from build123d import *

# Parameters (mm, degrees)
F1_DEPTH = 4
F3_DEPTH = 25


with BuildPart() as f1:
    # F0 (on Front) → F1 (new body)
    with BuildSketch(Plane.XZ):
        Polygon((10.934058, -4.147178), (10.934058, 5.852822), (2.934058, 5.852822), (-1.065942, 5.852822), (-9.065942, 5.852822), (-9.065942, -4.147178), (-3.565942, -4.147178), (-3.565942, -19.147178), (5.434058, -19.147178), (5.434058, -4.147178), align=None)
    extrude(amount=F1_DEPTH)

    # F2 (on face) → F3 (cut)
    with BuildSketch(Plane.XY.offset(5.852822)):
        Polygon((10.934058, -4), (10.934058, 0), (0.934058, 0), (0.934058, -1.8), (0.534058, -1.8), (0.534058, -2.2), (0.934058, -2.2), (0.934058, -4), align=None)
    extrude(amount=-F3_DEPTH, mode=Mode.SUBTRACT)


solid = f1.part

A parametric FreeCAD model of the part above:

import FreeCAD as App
import Part
import Sketcher

V = App.Vector

doc = App.newDocument("Part")
params = doc.addObject("Spreadsheet::Sheet", "Params")
for row, (alias, value) in enumerate([
    ("sketch1_width", "20 mm"),
    ("sketch1_width2", "9 mm"),
    ("sketch1_height", "10 mm"),
    ("sketch1_height2", "15 mm"),
    ("pad1_length", "4 mm"),
    ("sketch2_width", "10 mm"),
    ("sketch2_height", "4 mm"),
    ("sketch2_width2", "0.4 mm"),
    ("pocket1_length", "25 mm"),
], start=1):
    params.set(f"A{row}", alias)
    params.set(f"B{row}", "=" + value)
    params.setAlias(f"B{row}", alias)

body = doc.addObject("PartDesign::Body", "Body")

# Sketch on XZ plane
sketch1 = doc.addObject("Sketcher::SketchObject", "Sketch")
body.addObject(sketch1)
sketch1.AttachmentSupport = (doc.XZ_Plane, [""])
sketch1.MapMode = "FlatFace"
sketch1.addGeometry([
    Part.LineSegment(V(11, -4, 0), V(11, 6, 0)),  # 0
    Part.LineSegment(V(11, 6, 0), V(-9, 6, 0)),  # 1
    Part.LineSegment(V(-9, 6, 0), V(-9, -4, 0)),  # 2
    Part.LineSegment(V(-9, -4, 0), V(-4, -4, 0)),  # 3
    Part.LineSegment(V(-4, -4, 0), V(-4, -19, 0)),  # 4
    Part.LineSegment(V(-4, -19, 0), V(5, -19, 0)),  # 5
    Part.LineSegment(V(5, -19, 0), V(5, -4, 0)),  # 6
    Part.LineSegment(V(5, -4, 0), V(11, -4, 0)),  # 7
], False)
sketch1.addConstraint([
    Sketcher.Constraint("Coincident", 0, 2, 1, 1),
    Sketcher.Constraint("Coincident", 1, 2, 2, 1),
    Sketcher.Constraint("Coincident", 2, 2, 3, 1),
    Sketcher.Constraint("Coincident", 3, 2, 4, 1),
    Sketcher.Constraint("Coincident", 4, 2, 5, 1),
    Sketcher.Constraint("Coincident", 5, 2, 6, 1),
    Sketcher.Constraint("Coincident", 6, 2, 7, 1),
    Sketcher.Constraint("Coincident", 7, 2, 0, 1),
    Sketcher.Constraint("Vertical", 0),
    Sketcher.Constraint("Horizontal", 1),
    Sketcher.Constraint("Vertical", 2),
    Sketcher.Constraint("Horizontal", 3),
    Sketcher.Constraint("Vertical", 4),
    Sketcher.Constraint("Horizontal", 5),
    Sketcher.Constraint("Vertical", 6),
    Sketcher.Constraint("Horizontal", 7),
    Sketcher.Constraint("Horizontal", 3, 2, 6, 2),
    Sketcher.Constraint("Equal", 3, 7),
    Sketcher.Constraint("DistanceX", 1, 2, 1, 1, 20.0),
    Sketcher.Constraint("DistanceX", 5, 1, 5, 2, 9.0),
    Sketcher.Constraint("DistanceY", 0, 1, 0, 2, 10.0),
    Sketcher.Constraint("DistanceY", 4, 2, 4, 1, 15.0),
    Sketcher.Constraint("DistanceY", -1, 1, 0, 2, 5.852822),
    Sketcher.Constraint("DistanceX", -1, 1, 5, 2, 5.434058),
])
sketch1.setExpression("Constraints[18]", "Params.sketch1_width")
sketch1.setExpression("Constraints[19]", "Params.sketch1_width2")
sketch1.setExpression("Constraints[20]", "Params.sketch1_height")
sketch1.setExpression("Constraints[21]", "Params.sketch1_height2")
pad1 = doc.addObject("PartDesign::Pad", "Pad")
body.addObject(pad1)
pad1.Profile = sketch1
pad1.setExpression("Length", "Params.pad1_length")

# Sketch on XY plane
sketch2 = doc.addObject("Sketcher::SketchObject", "Sketch001")
body.addObject(sketch2)
sketch2.AttachmentSupport = (doc.XY_Plane, [""])
sketch2.MapMode = "FlatFace"
sketch2.AttachmentOffset = App.Placement(V(0, 0, 5.852822), App.Rotation())
sketch2.addGeometry([
    Part.LineSegment(V(10.93, -4, 0), V(10.93, 0, 0)),  # 0
    Part.LineSegment(V(10.93, 0, 0), V(0.93, 0, 0)),  # 1
    Part.LineSegment(V(0.93, 0, 0), V(0.93, -1.8, 0)),  # 2
    Part.LineSegment(V(0.93, -1.8, 0), V(0.53, -1.8, 0)),  # 3
    Part.LineSegment(V(0.53, -1.8, 0), V(0.53, -2.2, 0)),  # 4
    Part.LineSegment(V(0.53, -2.2, 0), V(0.93, -2.2, 0)),  # 5
    Part.LineSegment(V(0.93, -2.2, 0), V(0.93, -4, 0)),  # 6
    Part.LineSegment(V(0.93, -4, 0), V(10.93, -4, 0)),  # 7
], False)
sketch2.addConstraint([
    Sketcher.Constraint("Coincident", 0, 2, 1, 1),
    Sketcher.Constraint("Coincident", 1, 2, 2, 1),
    Sketcher.Constraint("Coincident", 2, 2, 3, 1),
    Sketcher.Constraint("Coincident", 3, 2, 4, 1),
    Sketcher.Constraint("Coincident", 4, 2, 5, 1),
    Sketcher.Constraint("Coincident", 5, 2, 6, 1),
    Sketcher.Constraint("Coincident", 6, 2, 7, 1),
    Sketcher.Constraint("Coincident", 7, 2, 0, 1),
    Sketcher.Constraint("Vertical", 0),
    Sketcher.Constraint("Horizontal", 1),
    Sketcher.Constraint("Vertical", 2),
    Sketcher.Constraint("Horizontal", 3),
    Sketcher.Constraint("Vertical", 4),
    Sketcher.Constraint("Horizontal", 5),
    Sketcher.Constraint("Vertical", 6),
    Sketcher.Constraint("Horizontal", 7),
    Sketcher.Constraint("PointOnObject", 0, 2, -1),
    Sketcher.Constraint("Vertical", 2, 2, 5, 2),
    Sketcher.Constraint("Equal", 5, 4),
    Sketcher.Constraint("Equal", 2, 6),
    Sketcher.Constraint("DistanceX", 1, 2, 1, 1, 10.0),
    Sketcher.Constraint("DistanceY", 0, 1, 0, 2, 4.0),
    Sketcher.Constraint("DistanceX", 3, 2, 3, 1, 0.4),
    Sketcher.Constraint("DistanceX", -1, 1, 1, 2, 0.934058),
])
sketch2.setExpression("Constraints[20]", "Params.sketch2_width")
sketch2.setExpression("Constraints[21]", "Params.sketch2_height")
sketch2.setExpression("Constraints[22]", "Params.sketch2_width2")
pocket1 = doc.addObject("PartDesign::Pocket", "Pocket")
body.addObject(pocket1)
pocket1.Profile = sketch2
pocket1.setExpression("Length", "Params.pocket1_length")

doc.recompute()
